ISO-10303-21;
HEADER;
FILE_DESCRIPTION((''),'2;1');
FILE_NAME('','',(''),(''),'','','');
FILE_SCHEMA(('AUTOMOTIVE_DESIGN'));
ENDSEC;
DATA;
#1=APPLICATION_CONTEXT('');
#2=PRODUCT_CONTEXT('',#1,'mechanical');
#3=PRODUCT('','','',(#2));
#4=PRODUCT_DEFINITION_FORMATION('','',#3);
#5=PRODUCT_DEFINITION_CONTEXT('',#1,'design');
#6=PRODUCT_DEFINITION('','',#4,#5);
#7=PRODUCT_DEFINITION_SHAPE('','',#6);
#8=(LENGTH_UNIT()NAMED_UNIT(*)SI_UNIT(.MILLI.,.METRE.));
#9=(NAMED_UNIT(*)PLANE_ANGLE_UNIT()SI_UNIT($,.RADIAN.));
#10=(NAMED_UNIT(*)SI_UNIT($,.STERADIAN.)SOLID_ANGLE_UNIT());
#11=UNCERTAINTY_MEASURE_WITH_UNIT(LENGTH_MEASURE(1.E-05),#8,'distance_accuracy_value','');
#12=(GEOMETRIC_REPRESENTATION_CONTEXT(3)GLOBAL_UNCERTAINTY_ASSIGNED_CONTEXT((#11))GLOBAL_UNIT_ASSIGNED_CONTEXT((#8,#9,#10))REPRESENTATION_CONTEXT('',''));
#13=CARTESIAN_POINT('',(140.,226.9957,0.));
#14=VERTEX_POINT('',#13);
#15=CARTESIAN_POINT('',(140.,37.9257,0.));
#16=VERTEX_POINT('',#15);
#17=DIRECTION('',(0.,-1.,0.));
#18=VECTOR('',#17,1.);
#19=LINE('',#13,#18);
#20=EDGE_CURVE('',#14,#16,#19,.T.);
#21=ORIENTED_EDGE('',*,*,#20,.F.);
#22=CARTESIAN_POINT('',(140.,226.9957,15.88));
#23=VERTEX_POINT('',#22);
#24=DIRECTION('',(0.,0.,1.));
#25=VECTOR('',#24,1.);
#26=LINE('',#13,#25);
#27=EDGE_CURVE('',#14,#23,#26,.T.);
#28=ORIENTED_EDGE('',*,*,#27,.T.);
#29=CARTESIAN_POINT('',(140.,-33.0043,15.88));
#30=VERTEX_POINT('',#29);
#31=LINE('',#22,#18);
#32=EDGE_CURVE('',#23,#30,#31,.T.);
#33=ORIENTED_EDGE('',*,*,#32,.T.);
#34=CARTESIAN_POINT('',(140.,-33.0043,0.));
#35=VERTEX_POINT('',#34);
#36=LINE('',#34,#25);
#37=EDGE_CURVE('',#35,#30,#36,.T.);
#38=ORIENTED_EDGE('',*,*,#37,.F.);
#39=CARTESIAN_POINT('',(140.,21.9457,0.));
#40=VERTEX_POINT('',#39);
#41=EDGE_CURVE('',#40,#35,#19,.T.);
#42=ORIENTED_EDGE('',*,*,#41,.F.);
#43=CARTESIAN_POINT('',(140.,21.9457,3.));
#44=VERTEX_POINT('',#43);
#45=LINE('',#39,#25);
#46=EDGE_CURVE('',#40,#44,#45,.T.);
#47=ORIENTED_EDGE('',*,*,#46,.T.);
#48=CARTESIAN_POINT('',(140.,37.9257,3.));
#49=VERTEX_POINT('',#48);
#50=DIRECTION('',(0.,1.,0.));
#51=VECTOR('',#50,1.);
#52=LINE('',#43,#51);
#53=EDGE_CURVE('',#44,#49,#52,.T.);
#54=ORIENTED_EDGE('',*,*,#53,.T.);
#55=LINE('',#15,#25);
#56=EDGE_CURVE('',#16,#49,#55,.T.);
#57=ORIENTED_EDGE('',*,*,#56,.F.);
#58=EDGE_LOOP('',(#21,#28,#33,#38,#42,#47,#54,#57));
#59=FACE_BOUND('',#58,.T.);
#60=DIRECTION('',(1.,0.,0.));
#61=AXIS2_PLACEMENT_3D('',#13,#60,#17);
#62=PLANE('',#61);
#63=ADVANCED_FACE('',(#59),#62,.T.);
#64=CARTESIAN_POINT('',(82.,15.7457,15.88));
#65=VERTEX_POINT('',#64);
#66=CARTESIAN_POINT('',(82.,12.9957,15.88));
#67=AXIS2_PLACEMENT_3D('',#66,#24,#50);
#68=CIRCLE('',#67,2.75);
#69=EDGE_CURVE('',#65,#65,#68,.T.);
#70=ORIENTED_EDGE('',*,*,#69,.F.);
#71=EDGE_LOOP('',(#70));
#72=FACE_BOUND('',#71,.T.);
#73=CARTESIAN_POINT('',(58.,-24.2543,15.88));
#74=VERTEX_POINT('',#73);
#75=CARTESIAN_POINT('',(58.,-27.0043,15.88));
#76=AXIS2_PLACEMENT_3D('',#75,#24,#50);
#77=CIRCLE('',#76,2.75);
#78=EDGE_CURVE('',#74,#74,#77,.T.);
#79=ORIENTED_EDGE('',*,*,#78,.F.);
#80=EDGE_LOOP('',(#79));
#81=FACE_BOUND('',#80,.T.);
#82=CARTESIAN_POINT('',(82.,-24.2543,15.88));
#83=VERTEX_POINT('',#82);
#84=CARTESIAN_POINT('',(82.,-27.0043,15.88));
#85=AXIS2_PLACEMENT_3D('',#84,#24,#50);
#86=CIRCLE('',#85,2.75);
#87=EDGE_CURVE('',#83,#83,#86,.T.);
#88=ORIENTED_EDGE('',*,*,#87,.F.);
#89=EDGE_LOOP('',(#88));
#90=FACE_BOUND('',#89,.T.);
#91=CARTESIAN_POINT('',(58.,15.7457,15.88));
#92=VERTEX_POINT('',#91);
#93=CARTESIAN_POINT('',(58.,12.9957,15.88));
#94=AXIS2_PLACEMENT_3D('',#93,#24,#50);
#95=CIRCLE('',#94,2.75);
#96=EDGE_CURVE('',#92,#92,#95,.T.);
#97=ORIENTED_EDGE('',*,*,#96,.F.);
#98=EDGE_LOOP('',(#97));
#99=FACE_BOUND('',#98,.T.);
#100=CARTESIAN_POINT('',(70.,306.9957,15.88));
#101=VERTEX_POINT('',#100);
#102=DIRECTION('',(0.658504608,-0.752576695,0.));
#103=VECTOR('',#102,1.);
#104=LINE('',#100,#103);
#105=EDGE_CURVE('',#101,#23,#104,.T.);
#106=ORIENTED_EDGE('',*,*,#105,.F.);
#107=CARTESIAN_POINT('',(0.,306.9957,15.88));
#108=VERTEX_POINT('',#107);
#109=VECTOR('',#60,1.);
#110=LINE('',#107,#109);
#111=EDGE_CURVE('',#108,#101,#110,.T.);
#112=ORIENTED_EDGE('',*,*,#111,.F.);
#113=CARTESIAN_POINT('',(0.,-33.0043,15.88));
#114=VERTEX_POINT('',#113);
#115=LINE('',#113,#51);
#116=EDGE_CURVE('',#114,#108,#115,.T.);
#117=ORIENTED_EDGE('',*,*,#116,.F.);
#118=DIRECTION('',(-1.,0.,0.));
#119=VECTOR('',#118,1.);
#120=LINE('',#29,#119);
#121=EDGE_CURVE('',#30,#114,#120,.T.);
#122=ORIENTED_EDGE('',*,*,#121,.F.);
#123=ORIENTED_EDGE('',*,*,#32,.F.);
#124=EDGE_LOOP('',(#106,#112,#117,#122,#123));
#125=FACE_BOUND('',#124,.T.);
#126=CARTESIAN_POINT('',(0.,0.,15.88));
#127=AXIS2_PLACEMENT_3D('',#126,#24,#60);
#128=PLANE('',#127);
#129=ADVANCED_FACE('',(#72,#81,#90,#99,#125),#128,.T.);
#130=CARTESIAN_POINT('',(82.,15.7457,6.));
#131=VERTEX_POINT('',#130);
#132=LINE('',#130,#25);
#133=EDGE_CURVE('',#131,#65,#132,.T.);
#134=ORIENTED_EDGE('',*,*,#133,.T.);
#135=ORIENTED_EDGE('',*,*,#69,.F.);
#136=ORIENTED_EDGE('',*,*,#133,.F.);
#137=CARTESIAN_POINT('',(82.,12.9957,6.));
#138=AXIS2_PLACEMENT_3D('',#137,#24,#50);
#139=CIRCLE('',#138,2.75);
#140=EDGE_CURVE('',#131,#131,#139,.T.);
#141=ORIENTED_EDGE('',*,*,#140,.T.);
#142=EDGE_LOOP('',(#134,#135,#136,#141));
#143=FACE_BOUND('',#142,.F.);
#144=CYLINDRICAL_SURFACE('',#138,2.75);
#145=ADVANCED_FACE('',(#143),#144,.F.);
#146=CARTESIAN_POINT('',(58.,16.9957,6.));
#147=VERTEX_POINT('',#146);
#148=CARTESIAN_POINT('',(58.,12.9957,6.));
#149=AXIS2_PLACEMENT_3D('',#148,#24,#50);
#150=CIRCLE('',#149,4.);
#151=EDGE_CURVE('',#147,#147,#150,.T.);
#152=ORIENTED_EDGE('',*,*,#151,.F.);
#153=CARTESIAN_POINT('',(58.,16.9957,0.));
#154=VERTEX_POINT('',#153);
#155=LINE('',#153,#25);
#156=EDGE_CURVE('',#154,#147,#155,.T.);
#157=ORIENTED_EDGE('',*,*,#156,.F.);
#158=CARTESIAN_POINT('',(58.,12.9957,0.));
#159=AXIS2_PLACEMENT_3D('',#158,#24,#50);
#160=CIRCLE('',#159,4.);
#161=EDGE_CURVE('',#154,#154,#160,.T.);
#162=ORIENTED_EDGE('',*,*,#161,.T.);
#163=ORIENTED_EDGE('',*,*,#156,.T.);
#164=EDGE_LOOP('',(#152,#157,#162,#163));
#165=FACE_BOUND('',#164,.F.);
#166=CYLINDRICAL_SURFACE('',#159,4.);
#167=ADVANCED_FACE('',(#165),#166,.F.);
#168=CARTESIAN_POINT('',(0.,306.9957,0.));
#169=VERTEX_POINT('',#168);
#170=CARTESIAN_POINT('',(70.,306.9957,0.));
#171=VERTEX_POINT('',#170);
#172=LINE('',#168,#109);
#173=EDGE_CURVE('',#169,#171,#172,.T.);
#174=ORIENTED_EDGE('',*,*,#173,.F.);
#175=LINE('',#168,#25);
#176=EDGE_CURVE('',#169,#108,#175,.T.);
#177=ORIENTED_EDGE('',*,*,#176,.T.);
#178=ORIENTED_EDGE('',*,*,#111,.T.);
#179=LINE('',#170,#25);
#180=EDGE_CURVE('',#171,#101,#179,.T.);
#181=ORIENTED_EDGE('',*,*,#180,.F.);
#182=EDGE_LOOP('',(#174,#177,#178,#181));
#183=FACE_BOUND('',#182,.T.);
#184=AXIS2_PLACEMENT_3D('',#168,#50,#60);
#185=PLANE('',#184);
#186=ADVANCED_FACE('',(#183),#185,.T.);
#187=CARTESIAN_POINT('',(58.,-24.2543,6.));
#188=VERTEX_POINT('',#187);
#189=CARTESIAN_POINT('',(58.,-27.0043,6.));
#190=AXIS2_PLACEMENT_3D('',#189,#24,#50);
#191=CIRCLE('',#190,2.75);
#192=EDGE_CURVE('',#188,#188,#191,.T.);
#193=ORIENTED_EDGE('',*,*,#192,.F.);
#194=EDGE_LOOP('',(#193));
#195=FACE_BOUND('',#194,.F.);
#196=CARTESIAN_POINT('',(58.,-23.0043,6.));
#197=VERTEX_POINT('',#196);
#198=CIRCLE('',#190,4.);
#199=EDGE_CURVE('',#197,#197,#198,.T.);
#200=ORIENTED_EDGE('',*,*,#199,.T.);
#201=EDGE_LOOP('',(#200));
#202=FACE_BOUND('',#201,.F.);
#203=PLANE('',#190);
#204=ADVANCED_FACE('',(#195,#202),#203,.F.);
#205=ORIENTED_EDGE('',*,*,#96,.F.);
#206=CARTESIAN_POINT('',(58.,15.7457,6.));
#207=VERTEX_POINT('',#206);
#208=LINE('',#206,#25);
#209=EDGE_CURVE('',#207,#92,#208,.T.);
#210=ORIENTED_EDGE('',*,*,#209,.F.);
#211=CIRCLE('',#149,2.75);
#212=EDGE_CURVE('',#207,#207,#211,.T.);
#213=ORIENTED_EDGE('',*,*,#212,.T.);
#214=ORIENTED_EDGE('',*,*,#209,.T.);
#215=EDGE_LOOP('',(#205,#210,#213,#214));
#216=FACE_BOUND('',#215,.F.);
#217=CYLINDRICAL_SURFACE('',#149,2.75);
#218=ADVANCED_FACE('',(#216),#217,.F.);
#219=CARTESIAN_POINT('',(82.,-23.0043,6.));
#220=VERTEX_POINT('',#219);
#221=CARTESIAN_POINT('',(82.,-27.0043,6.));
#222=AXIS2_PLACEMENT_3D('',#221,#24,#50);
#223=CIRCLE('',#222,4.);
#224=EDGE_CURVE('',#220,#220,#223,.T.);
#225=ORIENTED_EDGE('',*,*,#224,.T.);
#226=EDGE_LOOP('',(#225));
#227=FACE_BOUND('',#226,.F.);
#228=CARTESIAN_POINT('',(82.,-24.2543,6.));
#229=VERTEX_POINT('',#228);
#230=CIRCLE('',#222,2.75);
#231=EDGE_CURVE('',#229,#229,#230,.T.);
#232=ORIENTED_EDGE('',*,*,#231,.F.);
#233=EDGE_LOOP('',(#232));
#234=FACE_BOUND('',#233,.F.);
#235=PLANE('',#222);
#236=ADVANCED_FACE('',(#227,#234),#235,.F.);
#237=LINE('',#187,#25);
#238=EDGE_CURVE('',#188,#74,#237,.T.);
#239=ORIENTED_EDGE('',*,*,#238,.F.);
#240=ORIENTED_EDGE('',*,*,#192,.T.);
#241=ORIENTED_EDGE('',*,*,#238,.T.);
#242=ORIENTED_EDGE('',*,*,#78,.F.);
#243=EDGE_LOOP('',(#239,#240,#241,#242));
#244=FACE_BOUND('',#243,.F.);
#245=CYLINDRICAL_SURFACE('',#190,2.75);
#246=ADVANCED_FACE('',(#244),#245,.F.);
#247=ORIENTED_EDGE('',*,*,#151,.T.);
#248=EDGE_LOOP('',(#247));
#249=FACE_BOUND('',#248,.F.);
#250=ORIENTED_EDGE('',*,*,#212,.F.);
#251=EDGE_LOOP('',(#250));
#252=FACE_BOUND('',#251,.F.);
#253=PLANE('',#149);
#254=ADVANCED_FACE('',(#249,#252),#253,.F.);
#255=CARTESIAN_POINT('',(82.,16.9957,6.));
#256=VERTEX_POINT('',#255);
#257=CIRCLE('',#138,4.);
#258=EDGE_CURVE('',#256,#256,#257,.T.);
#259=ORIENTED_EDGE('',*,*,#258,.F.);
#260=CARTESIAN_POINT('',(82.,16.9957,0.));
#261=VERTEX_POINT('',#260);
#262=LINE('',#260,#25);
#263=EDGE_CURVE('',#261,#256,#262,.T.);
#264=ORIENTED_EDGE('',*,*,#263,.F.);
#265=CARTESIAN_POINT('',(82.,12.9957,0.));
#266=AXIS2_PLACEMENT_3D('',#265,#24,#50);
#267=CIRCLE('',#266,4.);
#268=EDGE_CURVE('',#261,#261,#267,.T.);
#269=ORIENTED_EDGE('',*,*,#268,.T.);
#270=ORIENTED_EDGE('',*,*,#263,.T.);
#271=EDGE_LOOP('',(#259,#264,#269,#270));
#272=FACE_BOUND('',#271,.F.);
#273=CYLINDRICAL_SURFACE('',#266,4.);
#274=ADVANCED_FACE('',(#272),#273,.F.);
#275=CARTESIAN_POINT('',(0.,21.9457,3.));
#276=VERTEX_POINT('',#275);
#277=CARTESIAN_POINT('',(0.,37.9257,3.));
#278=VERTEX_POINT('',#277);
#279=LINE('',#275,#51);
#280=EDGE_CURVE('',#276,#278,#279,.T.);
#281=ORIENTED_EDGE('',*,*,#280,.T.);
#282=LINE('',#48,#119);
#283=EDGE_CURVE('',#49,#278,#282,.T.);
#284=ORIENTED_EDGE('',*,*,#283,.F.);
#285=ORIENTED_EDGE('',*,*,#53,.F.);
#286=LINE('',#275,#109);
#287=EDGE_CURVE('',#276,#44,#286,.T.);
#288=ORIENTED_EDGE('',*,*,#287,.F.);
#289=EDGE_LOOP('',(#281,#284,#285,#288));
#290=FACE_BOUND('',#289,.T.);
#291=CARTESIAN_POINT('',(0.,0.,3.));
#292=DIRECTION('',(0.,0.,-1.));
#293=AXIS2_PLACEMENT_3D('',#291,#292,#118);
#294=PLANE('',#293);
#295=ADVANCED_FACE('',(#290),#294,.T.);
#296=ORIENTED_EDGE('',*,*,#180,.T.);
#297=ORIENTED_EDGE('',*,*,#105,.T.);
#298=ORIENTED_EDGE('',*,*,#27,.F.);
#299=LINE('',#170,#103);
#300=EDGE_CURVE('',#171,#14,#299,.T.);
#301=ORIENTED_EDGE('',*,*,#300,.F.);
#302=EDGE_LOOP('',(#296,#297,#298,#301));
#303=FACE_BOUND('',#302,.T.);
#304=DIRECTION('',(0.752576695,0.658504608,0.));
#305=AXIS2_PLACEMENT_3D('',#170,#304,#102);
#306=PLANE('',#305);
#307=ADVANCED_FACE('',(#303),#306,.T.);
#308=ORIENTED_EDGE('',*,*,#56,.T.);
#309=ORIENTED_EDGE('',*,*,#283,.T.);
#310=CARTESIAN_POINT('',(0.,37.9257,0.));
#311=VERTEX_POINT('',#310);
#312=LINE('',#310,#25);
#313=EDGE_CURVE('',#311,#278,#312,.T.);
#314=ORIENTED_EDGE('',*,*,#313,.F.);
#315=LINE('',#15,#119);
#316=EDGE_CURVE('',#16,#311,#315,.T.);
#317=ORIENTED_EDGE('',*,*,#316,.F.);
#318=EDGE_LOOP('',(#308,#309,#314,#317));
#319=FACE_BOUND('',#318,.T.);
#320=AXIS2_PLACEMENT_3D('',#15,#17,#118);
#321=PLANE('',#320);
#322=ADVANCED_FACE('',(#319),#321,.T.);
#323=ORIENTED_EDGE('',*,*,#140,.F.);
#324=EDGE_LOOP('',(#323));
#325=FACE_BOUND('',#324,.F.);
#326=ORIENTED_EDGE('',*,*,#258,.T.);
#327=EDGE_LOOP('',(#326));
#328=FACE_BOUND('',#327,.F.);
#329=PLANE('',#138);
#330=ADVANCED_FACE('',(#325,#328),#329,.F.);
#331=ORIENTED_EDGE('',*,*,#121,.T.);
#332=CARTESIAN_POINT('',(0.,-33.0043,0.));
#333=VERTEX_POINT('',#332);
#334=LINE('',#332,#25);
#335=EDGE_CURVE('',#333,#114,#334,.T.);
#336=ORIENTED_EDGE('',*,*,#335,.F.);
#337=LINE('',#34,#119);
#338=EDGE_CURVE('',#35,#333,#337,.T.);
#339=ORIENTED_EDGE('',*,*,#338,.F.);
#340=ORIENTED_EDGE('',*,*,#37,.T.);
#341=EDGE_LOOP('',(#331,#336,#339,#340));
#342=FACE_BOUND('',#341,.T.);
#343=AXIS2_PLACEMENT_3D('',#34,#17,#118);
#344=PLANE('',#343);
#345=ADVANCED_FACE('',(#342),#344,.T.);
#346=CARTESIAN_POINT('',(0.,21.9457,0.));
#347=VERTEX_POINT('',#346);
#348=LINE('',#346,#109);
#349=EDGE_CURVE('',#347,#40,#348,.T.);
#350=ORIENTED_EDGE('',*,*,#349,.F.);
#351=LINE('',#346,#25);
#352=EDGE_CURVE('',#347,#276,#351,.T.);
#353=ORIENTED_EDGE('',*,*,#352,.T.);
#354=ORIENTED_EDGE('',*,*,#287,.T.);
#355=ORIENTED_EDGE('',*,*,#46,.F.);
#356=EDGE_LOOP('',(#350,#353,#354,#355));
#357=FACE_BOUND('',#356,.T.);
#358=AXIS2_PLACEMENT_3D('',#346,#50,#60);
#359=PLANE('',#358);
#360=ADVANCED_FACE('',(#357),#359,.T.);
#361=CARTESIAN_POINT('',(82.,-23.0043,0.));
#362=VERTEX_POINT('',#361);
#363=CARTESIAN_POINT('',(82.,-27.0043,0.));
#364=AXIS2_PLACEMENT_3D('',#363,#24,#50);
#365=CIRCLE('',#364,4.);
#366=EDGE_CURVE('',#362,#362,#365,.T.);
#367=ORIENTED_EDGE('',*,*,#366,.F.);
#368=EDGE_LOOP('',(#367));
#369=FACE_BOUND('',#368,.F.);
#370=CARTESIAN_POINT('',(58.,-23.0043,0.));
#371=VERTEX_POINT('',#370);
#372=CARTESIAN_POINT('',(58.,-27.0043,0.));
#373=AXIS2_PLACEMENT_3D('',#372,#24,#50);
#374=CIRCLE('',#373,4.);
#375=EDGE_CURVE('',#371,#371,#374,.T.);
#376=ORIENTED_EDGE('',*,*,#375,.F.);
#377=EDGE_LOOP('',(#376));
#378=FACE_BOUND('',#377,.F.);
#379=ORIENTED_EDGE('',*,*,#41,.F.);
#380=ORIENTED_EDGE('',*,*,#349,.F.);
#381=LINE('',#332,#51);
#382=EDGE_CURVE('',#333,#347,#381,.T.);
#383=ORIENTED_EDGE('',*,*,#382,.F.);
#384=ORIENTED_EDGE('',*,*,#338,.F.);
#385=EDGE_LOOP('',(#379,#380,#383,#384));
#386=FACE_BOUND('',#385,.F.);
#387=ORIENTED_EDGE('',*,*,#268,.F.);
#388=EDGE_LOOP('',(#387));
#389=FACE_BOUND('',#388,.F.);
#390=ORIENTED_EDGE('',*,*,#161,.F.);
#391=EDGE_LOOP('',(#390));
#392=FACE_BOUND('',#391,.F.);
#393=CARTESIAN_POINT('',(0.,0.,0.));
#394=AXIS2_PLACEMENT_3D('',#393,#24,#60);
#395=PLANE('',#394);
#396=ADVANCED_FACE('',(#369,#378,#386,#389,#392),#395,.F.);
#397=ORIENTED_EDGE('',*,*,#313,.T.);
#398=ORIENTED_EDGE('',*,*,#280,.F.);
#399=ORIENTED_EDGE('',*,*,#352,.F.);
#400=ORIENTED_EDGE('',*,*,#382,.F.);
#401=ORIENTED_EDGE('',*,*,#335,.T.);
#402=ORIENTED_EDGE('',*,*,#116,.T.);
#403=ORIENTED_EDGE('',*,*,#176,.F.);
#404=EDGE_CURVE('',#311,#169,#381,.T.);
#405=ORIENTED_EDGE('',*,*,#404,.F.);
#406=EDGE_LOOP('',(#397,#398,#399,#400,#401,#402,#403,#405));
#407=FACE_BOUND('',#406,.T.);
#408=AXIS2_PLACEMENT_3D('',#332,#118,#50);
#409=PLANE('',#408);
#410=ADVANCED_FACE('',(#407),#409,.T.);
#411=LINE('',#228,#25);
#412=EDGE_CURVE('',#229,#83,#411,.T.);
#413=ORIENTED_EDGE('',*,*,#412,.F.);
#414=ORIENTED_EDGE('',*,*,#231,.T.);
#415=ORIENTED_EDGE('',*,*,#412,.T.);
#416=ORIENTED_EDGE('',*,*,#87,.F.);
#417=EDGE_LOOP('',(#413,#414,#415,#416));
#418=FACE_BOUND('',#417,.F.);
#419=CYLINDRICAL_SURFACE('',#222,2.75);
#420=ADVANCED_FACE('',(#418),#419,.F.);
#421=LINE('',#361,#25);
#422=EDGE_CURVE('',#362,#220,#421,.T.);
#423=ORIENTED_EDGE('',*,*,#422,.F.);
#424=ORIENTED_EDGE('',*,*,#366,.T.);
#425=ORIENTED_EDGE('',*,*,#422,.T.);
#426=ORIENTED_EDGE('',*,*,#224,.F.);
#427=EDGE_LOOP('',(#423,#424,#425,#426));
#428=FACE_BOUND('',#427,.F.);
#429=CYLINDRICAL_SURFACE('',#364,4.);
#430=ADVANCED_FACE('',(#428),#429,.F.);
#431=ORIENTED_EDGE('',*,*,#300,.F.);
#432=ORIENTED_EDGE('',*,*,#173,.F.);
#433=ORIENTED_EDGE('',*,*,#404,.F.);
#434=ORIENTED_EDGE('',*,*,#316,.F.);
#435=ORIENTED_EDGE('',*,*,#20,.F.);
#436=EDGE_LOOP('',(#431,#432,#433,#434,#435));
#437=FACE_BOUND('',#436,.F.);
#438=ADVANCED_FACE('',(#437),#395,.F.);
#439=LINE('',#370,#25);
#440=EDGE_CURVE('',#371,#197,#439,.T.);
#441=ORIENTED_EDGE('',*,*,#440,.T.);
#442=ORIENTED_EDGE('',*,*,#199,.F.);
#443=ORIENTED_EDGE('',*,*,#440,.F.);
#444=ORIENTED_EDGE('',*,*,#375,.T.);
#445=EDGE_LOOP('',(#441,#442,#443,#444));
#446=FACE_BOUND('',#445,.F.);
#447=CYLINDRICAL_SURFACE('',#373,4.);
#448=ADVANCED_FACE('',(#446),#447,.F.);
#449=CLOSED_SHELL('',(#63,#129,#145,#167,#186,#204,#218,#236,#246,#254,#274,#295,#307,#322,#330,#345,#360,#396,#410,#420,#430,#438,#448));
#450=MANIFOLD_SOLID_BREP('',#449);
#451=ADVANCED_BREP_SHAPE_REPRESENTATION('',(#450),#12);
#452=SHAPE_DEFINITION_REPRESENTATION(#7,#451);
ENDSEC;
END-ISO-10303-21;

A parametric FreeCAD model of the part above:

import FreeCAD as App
import Part
import Sketcher
from FreeCAD import Vector


def add_polygon(sketch, points):
    """Adds a closed chain of lines whose ends are joined by coincident constraints."""
    first, n = sketch.GeometryCount, len(points)
    for a, b in zip(points, points[1:] + points[:1]):
        sketch.addGeometry(Part.LineSegment(App.Vector(*a, 0), App.Vector(*b, 0)), False)
    for i in range(n):
        sketch.addConstraint(Sketcher.Constraint("Coincident", first + i, 2, first + (i + 1) % n, 1))

doc = App.newDocument("Part")
body = doc.addObject("PartDesign::Body", "Body")

sketch1 = body.newObject("Sketcher::SketchObject", "Sketch")
sketch1.AttachmentSupport = (doc.getObject("XY_Plane"), [""])
sketch1.MapMode = "FlatFace"
add_polygon(sketch1, [(70, 306.9957), (0, 306.9957), (0, -33.0043), (140, -33.0043), (140, 226.9957)])
sketch1.addConstraint(Sketcher.Constraint("Horizontal", 0))
sketch1.addConstraint(Sketcher.Constraint("Vertical", 1))
sketch1.addConstraint(Sketcher.Constraint("Horizontal", 2))
sketch1.addConstraint(Sketcher.Constraint("Vertical", 3))
sketch1.addConstraint(Sketcher.Constraint("PointOnObject", 0, 2, -2))
sketch1.addConstraint(Sketcher.Constraint("DistanceX", 0, 2, 0, 1, 70.0))
sketch1.addConstraint(Sketcher.Constraint("DistanceX", 2, 1, 2, 2, 140.0))
sketch1.addConstraint(Sketcher.Constraint("DistanceY", 1, 2, 1, 1, 340.0))
sketch1.addConstraint(Sketcher.Constraint("DistanceY", 3, 1, 3, 2, 260.0))
sketch1.addConstraint(Sketcher.Constraint("DistanceY", -1, 1, 0, 2, 306.9957))
pad1 = body.newObject("PartDesign::Pad", "Pad")
pad1.Profile = sketch1
pad1.Length = 15.88

sketch2 = body.newObject("Sketcher::SketchObject", "Sketch001")
sketch2.AttachmentSupport = (doc.getObject("XY_Plane"), [""])
sketch2.MapMode = "FlatFace"
add_polygon(sketch2, [(140, 21.9457), (0, 21.9457), (0, 37.9257), (140, 37.9257)])
sketch2.addConstraint(Sketcher.Constraint("Horizontal", 0))
sketch2.addConstraint(Sketcher.Constraint("Vertical", 1))
sketch2.addConstraint(Sketcher.Constraint("Horizontal", 2))
sketch2.addConstraint(Sketcher.Constraint("Vertical", 3))
sketch2.addConstraint(Sketcher.Constraint("PointOnObject", 0, 2, -2))
sketch2.addConstraint(Sketcher.Constraint("DistanceY", 1, 1, 1, 2, 15.98))
sketch2.addConstraint(Sketcher.Constraint("DistanceX", 0, 2, 0, 1, 140.0))
sketch2.addConstraint(Sketcher.Constraint("DistanceY", -1, 1, 0, 2, 21.9457))
pocket1 = body.newObject("PartDesign::Pocket", "Pocket")
pocket1.Profile = sketch2
pocket1.Length = 3
pocket1.Reversed = True

sketch3 = body.newObject("Sketcher::SketchObject", "Sketch002")
sketch3.AttachmentSupport = (doc.getObject("XY_Plane"), [""])
sketch3.MapMode = "FlatFace"
sketch3.addGeometry(Part.Circle(Vector(82, 12.9957, 0), Vector(0, 0, 1), 2.75), False)
sketch3.addGeometry(Part.Circle(Vector(82, 12.9957, 0), Vector(0, 0, 1), 2.75), False)
sketch3.addGeometry(Part.Circle(Vector(58, 12.9957, 0), Vector(0, 0, 1), 2.75), False)
sketch3.addGeometry(Part.Circle(Vector(58, -27.0043, 0), Vector(0, 0, 1), 2.75), False)
sketch3.addGeometry(Part.Circle(Vector(82, -27.0043, 0), Vector(0, 0, 1), 2.75), False)
sketch3.addConstraint(Sketcher.Constraint("Coincident", 1, 3, 0, 3))
sketch3.addConstraint(Sketcher.Constraint("Equal", 0, 1))
sketch3.addConstraint(Sketcher.Constraint("Equal", 1, 2))
sketch3.addConstraint(Sketcher.Constraint("Equal", 2, 3))
sketch3.addConstraint(Sketcher.Constraint("Equal", 3, 4))
sketch3.addConstraint(Sketcher.Constraint("Horizontal", 1, 3, 2, 3))
sketch3.addConstraint(Sketcher.Constraint("Horizontal", 3, 3, 4, 3))
sketch3.addConstraint(Sketcher.Constraint("Vertical", 2, 3, 3, 3))
sketch3.addConstraint(Sketcher.Constraint("Vertical", 1, 3, 4, 3))
sketch3.addConstraint(Sketcher.Constraint("Diameter", 0, 5.5))
sketch3.addConstraint(Sketcher.Constraint("DistanceX", -1, 1, 0, 3, 82.0))
sketch3.addConstraint(Sketcher.Constraint("DistanceX", -1, 1, 2, 3, 58.0))
sketch3.addConstraint(Sketcher.Constraint("DistanceY", 3, 3, 2, 3, 40.0))
sketch3.addConstraint(Sketcher.Constraint("DistanceY", -1, 1, 0, 3, 12.9957))
doc.recompute()
hole = body.newObject("PartDesign::Hole", "Hole")
hole.Profile = sketch3
hole.ThreadType = "None"
hole.Diameter = 5.5
hole.DepthType = "ThroughAll"
hole.HoleCutType = "Counterbore"
hole.HoleCutDiameter = 8
hole.HoleCutDepth = 6
hole.Reversed = True

doc.recompute()
